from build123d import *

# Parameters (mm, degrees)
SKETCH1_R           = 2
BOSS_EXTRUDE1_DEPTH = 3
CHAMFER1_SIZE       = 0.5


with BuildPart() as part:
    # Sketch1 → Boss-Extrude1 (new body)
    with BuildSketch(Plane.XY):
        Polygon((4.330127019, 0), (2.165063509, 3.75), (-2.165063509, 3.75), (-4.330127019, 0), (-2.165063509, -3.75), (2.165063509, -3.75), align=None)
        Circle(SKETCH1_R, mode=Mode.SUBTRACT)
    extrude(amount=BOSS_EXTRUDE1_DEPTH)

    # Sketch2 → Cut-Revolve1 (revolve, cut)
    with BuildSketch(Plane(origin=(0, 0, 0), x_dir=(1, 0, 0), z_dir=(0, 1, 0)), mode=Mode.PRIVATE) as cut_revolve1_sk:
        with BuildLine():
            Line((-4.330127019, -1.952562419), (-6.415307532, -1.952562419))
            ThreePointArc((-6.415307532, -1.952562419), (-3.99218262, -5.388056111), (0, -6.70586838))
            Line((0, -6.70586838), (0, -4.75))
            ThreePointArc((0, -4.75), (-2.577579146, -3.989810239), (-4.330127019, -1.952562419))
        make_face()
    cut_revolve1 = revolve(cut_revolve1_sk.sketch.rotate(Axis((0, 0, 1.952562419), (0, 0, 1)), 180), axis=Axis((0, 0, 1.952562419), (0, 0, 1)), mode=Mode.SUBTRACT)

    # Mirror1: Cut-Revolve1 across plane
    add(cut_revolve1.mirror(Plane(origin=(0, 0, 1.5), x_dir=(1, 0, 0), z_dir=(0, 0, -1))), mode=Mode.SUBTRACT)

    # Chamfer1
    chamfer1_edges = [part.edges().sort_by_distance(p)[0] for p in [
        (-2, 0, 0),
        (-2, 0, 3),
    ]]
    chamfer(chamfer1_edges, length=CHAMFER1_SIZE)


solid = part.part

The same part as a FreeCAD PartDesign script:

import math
import FreeCAD as App
import Part
import Sketcher
Q = App.Units.Quantity


def edges_at(feature, points):
    """Names of the edges that pass closest to the given points."""
    edges = feature.Shape.Edges
    near = lambda p: min(range(len(edges)), key=lambda i: edges[i].distToShape(Part.Vertex(*p))[0])
    return sorted({f"Edge{near(p) + 1}" for p in points})


def add_polygon(sketch, points):
    """Adds a closed chain of lines whose ends are joined by coincident constraints."""
    first, n = sketch.GeometryCount, len(points)
    for a, b in zip(points, points[1:] + points[:1]):
        sketch.addGeometry(Part.LineSegment(App.Vector(*a, 0), App.Vector(*b, 0)), False)
    for i in range(n):
        sketch.addConstraint(Sketcher.Constraint("Coincident", first + i, 2, first + (i + 1) % n, 1))

doc = App.newDocument("Part")
body = doc.addObject("PartDesign::Body", "Body")

sketch1 = body.newObject("Sketcher::SketchObject", "Sketch")
sketch1.AttachmentSupport = (doc.getObject("XY_Plane"), [""])
sketch1.MapMode = "FlatFace"
add_polygon(sketch1, [(4.3, 0), (2.2, 3.8), (-2.2, 3.8), (-4.3, 0), (-2.2, -3.8), (2.2, -3.8)])
sketch1.addGeometry(Part.Circle(App.Vector(0, 0, 0), App.Vector(0, 0, 1), 2), False)
sketch1.addConstraint(Sketcher.Constraint("Horizontal", 1))
sketch1.addConstraint(Sketcher.Constraint("Horizontal", 4))
sketch1.addConstraint(Sketcher.Constraint("Coincident", 6, 3, -1, 1))
sketch1.addConstraint(Sketcher.Constraint("Symmetric", 0, 2, 3, 2, -1, 1))
sketch1.addConstraint(Sketcher.Constraint("Symmetric", 2, 2, 5, 2, -1, 1))
sketch1.addConstraint(Sketcher.Constraint("PointOnObject", 2, 2, -1))
sketch1.addConstraint(Sketcher.Constraint("Parallel", 2, 5))
sketch1.addConstraint(Sketcher.Constraint("Vertical", 1, 2, 3, 2))
sketch1.addConstraint(Sketcher.Constraint("Diameter", 6, 4.0))
sketch1.addConstraint(Sketcher.Constraint("Angle", 0, Q("120 deg")))
sketch1.addConstraint(Sketcher.Constraint("DistanceY", 3, 2, 1, 2, 7.5))
sketch1.addConstraint(Sketcher.Constraint("DistanceX", 1, 2, 1, 1, 4.330127))
pad1 = body.newObject("PartDesign::Pad", "Pad")
pad1.Profile = sketch1
pad1.Length = 3

sketch2 = body.newObject("Sketcher::SketchObject", "Sketch001")
sketch2.AttachmentSupport = (doc.getObject("XZ_Plane"), [""])
sketch2.MapMode = "FlatFace"
sketch2.addGeometry(Part.LineSegment(App.Vector(-4.3, 2, 0), App.Vector(-6.4, 2, 0)), False)
sketch2.addGeometry(Part.ArcOfCircle(Part.Circle(App.Vector(0, 0, 0), App.Vector(0, 0, 1), 6.7), math.radians(90), math.radians(163)), False)
sketch2.addGeometry(Part.LineSegment(App.Vector(0, 6.7, 0), App.Vector(0, 4.8, 0)), False)
sketch2.addGeometry(Part.ArcOfCircle(Part.Circle(App.Vector(0, 0, 0), App.Vector(0, 0, 1), 4.8), math.radians(90), math.radians(156)), False)
sketch2.addConstraint(Sketcher.Constraint("Coincident", 0, 2, 1, 2))
sketch2.addConstraint(Sketcher.Constraint("Coincident", 1, 1, 2, 1))
sketch2.addConstraint(Sketcher.Constraint("Coincident", 2, 2, 3, 1))
sketch2.addConstraint(Sketcher.Constraint("Coincident", 3, 2, 0, 1))
sketch2.addConstraint(Sketcher.Constraint("Horizontal", 0))
sketch2.addConstraint(Sketcher.Constraint("Vertical", 2))
sketch2.addConstraint(Sketcher.Constraint("Coincident", 1, 3, -1, 1))
sketch2.addConstraint(Sketcher.Constraint("Coincident", 3, 3, -1, 1))
sketch2.addConstraint(Sketcher.Constraint("PointOnObject", 1, 1, -2))
sketch2.addConstraint(Sketcher.Constraint("Radius", 3, 4.75))
sketch2.addConstraint(Sketcher.Constraint("Radius", 1, 6.705868))
sketch2.addConstraint(Sketcher.Constraint("DistanceX", 0, 2, 0, 1, 2.085181))
groove = body.newObject("PartDesign::Groove", "Groove")
groove.Profile = sketch2
groove.ReferenceAxis = (sketch2, ["V_Axis"])
groove.Angle = 360
doc.recompute()

datumplane = body.newObject("PartDesign::Plane", "DatumPlane")
datumplane.AttachmentSupport = (doc.getObject("XY_Plane"), [""])
datumplane.MapMode = "FlatFace"
datumplane.AttachmentOffset = App.Placement(App.Vector(0, 0, 1.5), App.Rotation())
mirrored = body.newObject("PartDesign::Mirrored", "Mirrored")
mirrored.Originals = [groove]
mirrored.MirrorPlane = (datumplane, [""])
body.Tip = mirrored
doc.recompute()

chamfer = body.newObject("PartDesign::Chamfer", "Chamfer")
chamfer.Base = (mirrored, edges_at(mirrored, [(-2, 0, 0), (-2, 0, 3)]))
chamfer.Size = 0.5

doc.recompute()
